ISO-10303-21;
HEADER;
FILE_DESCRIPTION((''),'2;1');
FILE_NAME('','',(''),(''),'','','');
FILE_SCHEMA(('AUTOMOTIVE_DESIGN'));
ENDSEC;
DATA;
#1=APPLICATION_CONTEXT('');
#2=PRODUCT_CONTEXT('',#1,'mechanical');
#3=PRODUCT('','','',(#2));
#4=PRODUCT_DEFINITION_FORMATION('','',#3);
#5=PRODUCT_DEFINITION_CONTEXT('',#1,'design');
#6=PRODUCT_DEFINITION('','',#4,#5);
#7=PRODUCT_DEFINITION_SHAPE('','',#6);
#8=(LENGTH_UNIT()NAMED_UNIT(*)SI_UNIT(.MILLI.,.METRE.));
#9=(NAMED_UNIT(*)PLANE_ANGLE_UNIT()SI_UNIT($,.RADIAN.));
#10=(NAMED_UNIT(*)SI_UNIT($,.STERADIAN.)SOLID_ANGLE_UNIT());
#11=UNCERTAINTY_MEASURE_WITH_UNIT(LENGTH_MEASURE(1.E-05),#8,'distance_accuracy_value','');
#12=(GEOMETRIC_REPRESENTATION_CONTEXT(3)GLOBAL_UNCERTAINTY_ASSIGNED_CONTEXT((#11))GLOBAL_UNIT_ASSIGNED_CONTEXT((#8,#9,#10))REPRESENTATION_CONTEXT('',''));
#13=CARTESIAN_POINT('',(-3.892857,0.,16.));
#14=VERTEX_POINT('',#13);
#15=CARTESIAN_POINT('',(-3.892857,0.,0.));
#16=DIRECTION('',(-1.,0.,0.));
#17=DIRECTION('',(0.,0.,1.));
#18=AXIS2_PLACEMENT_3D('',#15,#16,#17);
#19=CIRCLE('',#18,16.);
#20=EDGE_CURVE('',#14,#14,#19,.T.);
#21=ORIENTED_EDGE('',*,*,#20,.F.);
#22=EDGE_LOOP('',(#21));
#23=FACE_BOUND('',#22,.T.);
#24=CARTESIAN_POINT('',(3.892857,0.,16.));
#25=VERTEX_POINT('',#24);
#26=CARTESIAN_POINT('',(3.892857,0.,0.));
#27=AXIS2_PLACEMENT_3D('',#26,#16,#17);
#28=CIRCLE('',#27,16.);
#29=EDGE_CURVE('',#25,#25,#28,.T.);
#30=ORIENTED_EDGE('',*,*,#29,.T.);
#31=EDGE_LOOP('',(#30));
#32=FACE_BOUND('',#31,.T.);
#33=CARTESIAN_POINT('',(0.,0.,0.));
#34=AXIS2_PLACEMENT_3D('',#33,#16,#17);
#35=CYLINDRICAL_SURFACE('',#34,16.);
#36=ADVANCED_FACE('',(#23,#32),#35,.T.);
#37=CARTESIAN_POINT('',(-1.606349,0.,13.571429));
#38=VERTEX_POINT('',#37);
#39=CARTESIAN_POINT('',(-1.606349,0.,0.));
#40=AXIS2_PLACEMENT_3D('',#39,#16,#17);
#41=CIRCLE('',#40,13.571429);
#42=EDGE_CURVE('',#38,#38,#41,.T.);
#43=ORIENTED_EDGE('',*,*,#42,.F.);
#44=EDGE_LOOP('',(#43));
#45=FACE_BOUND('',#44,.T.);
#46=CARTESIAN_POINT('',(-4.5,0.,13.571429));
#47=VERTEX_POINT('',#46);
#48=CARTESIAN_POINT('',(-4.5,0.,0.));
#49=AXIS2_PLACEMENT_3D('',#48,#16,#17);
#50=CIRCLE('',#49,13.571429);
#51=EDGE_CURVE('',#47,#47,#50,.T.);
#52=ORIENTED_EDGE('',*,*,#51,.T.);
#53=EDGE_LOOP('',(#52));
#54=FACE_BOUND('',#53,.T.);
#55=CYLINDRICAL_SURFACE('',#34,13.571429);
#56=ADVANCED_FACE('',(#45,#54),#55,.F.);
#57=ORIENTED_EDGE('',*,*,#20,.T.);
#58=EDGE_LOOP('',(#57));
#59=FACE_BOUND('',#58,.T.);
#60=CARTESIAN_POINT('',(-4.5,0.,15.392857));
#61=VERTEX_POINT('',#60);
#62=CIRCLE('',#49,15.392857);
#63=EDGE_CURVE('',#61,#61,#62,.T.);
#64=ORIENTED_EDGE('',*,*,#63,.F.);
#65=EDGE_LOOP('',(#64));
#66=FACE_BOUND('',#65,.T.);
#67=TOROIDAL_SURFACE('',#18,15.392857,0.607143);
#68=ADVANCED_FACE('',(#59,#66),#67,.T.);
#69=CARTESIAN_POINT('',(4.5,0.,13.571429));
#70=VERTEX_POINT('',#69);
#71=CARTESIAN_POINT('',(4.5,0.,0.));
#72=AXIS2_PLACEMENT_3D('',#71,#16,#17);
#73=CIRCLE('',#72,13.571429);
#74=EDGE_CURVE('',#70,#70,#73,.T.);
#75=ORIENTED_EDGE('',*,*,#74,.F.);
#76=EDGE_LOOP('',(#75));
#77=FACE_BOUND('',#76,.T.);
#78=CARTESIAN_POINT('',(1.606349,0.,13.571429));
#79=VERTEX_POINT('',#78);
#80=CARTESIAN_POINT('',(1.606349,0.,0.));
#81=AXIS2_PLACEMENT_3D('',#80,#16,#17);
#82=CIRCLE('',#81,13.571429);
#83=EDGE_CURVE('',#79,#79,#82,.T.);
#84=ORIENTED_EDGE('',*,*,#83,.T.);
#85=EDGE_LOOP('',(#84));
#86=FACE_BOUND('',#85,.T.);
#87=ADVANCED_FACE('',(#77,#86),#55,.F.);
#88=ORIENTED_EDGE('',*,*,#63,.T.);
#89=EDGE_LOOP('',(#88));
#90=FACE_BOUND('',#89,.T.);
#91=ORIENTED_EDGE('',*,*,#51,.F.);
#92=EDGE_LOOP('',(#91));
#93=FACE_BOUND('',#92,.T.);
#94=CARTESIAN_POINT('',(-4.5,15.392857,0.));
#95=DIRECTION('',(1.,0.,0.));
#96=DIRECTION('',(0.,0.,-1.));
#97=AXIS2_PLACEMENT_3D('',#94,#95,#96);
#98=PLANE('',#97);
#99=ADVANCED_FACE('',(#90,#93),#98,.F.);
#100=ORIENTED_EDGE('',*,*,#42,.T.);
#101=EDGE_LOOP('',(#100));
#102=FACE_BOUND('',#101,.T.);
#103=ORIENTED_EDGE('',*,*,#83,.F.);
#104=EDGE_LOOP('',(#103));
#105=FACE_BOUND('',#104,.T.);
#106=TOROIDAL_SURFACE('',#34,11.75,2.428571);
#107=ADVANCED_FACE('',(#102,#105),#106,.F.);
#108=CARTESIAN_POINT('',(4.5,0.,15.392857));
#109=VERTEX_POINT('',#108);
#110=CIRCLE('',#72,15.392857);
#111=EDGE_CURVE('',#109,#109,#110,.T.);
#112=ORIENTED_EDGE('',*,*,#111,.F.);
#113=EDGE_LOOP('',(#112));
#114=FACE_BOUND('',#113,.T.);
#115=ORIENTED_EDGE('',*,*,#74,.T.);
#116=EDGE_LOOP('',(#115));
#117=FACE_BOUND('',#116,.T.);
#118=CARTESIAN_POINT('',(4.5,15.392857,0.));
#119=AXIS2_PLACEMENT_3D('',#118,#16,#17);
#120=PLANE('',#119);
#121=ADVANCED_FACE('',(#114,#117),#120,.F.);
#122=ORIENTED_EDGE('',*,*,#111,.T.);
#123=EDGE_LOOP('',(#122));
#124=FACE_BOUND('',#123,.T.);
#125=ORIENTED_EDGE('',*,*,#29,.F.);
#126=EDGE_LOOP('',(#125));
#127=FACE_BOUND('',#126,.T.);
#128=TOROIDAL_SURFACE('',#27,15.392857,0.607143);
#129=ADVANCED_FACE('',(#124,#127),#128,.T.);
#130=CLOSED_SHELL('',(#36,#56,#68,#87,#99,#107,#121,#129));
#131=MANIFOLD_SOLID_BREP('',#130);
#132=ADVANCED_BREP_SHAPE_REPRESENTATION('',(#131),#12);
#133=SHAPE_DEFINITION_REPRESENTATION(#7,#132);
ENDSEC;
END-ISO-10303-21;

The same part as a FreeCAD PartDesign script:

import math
import FreeCAD as App
import Part
import Sketcher
from FreeCAD import Vector

doc = App.newDocument("Part")
body = doc.addObject("PartDesign::Body", "Body")

# Sketch on XY plane
sketch1 = body.newObject("Sketcher::SketchObject", "Sketch")
sketch1.AttachmentSupport = (doc.getObject("XY_Plane"), [""])
sketch1.MapMode = "FlatFace"
sketch1.addGeometry([
    Part.LineSegment(Vector(3.892857, 16, 0), Vector(-3.892857, 16, 0)),  # 0
    Part.ArcOfCircle(Part.Circle(Vector(-3.892857, 15.392857, 0), Vector(0, 0, 1), 0.607143), math.radians(90), math.radians(180)),  # 1
    Part.LineSegment(Vector(-4.5, 15.392857, 0), Vector(-4.5, 13.571429, 0)),  # 2
    Part.LineSegment(Vector(-4.5, 13.571429, 0), Vector(-1.606349, 13.571429, 0)),  # 3
    Part.ArcOfCircle(Part.Circle(Vector(0, 11.75, 0), Vector(0, 0, 1), 2.428571), math.radians(48.590378), math.radians(131.409622)),  # 4
    Part.LineSegment(Vector(1.606349, 13.571429, 0), Vector(4.5, 13.571429, 0)),  # 5
    Part.LineSegment(Vector(4.5, 13.571429, 0), Vector(4.5, 15.392857, 0)),  # 6
    Part.ArcOfCircle(Part.Circle(Vector(3.892857, 15.392857, 0), Vector(0, 0, 1), 0.607143), math.radians(0), math.radians(90)),  # 7
], False)
sketch1.addConstraint([
    Sketcher.Constraint("Tangent", 0, 2, 1, 1),
    Sketcher.Constraint("Tangent", 1, 2, 2, 1),
    Sketcher.Constraint("Coincident", 2, 2, 3, 1),
    Sketcher.Constraint("Coincident", 3, 2, 4, 2),
    Sketcher.Constraint("Coincident", 4, 1, 5, 1),
    Sketcher.Constraint("Coincident", 5, 2, 6, 1),
    Sketcher.Constraint("Tangent", 6, 2, 7, 1),
    Sketcher.Constraint("Tangent", 7, 2, 0, 1),
    Sketcher.Constraint("Horizontal", 0),
    Sketcher.Constraint("Vertical", 2),
    Sketcher.Constraint("Horizontal", 3),
    Sketcher.Constraint("Horizontal", 5),
    Sketcher.Constraint("Vertical", 6),
    Sketcher.Constraint("Equal", 1, 7),
    Sketcher.Constraint("Symmetric", 3, 2, 4, 1, -2),
    Sketcher.Constraint("Equal", 3, 5),
    Sketcher.Constraint("DistanceY", -1, 1, 0, 2, 16.0),
    Sketcher.Constraint("DistanceX", 1, 2, -1, 1, 4.5),
    Sketcher.Constraint("DistanceY", -1, 1, 4, 3, 11.75),
    Sketcher.Constraint("Radius", 4, 2.428571),
    Sketcher.Constraint("Radius", 1, 0.607143),
    Sketcher.Constraint("DistanceX", 3, 1, 3, 2, 2.893651),
])
revolution = body.newObject("PartDesign::Revolution", "Revolution")
revolution.Profile = sketch1
revolution.ReferenceAxis = (sketch1, ["H_Axis"])
revolution.Angle = 360

doc.recompute()
